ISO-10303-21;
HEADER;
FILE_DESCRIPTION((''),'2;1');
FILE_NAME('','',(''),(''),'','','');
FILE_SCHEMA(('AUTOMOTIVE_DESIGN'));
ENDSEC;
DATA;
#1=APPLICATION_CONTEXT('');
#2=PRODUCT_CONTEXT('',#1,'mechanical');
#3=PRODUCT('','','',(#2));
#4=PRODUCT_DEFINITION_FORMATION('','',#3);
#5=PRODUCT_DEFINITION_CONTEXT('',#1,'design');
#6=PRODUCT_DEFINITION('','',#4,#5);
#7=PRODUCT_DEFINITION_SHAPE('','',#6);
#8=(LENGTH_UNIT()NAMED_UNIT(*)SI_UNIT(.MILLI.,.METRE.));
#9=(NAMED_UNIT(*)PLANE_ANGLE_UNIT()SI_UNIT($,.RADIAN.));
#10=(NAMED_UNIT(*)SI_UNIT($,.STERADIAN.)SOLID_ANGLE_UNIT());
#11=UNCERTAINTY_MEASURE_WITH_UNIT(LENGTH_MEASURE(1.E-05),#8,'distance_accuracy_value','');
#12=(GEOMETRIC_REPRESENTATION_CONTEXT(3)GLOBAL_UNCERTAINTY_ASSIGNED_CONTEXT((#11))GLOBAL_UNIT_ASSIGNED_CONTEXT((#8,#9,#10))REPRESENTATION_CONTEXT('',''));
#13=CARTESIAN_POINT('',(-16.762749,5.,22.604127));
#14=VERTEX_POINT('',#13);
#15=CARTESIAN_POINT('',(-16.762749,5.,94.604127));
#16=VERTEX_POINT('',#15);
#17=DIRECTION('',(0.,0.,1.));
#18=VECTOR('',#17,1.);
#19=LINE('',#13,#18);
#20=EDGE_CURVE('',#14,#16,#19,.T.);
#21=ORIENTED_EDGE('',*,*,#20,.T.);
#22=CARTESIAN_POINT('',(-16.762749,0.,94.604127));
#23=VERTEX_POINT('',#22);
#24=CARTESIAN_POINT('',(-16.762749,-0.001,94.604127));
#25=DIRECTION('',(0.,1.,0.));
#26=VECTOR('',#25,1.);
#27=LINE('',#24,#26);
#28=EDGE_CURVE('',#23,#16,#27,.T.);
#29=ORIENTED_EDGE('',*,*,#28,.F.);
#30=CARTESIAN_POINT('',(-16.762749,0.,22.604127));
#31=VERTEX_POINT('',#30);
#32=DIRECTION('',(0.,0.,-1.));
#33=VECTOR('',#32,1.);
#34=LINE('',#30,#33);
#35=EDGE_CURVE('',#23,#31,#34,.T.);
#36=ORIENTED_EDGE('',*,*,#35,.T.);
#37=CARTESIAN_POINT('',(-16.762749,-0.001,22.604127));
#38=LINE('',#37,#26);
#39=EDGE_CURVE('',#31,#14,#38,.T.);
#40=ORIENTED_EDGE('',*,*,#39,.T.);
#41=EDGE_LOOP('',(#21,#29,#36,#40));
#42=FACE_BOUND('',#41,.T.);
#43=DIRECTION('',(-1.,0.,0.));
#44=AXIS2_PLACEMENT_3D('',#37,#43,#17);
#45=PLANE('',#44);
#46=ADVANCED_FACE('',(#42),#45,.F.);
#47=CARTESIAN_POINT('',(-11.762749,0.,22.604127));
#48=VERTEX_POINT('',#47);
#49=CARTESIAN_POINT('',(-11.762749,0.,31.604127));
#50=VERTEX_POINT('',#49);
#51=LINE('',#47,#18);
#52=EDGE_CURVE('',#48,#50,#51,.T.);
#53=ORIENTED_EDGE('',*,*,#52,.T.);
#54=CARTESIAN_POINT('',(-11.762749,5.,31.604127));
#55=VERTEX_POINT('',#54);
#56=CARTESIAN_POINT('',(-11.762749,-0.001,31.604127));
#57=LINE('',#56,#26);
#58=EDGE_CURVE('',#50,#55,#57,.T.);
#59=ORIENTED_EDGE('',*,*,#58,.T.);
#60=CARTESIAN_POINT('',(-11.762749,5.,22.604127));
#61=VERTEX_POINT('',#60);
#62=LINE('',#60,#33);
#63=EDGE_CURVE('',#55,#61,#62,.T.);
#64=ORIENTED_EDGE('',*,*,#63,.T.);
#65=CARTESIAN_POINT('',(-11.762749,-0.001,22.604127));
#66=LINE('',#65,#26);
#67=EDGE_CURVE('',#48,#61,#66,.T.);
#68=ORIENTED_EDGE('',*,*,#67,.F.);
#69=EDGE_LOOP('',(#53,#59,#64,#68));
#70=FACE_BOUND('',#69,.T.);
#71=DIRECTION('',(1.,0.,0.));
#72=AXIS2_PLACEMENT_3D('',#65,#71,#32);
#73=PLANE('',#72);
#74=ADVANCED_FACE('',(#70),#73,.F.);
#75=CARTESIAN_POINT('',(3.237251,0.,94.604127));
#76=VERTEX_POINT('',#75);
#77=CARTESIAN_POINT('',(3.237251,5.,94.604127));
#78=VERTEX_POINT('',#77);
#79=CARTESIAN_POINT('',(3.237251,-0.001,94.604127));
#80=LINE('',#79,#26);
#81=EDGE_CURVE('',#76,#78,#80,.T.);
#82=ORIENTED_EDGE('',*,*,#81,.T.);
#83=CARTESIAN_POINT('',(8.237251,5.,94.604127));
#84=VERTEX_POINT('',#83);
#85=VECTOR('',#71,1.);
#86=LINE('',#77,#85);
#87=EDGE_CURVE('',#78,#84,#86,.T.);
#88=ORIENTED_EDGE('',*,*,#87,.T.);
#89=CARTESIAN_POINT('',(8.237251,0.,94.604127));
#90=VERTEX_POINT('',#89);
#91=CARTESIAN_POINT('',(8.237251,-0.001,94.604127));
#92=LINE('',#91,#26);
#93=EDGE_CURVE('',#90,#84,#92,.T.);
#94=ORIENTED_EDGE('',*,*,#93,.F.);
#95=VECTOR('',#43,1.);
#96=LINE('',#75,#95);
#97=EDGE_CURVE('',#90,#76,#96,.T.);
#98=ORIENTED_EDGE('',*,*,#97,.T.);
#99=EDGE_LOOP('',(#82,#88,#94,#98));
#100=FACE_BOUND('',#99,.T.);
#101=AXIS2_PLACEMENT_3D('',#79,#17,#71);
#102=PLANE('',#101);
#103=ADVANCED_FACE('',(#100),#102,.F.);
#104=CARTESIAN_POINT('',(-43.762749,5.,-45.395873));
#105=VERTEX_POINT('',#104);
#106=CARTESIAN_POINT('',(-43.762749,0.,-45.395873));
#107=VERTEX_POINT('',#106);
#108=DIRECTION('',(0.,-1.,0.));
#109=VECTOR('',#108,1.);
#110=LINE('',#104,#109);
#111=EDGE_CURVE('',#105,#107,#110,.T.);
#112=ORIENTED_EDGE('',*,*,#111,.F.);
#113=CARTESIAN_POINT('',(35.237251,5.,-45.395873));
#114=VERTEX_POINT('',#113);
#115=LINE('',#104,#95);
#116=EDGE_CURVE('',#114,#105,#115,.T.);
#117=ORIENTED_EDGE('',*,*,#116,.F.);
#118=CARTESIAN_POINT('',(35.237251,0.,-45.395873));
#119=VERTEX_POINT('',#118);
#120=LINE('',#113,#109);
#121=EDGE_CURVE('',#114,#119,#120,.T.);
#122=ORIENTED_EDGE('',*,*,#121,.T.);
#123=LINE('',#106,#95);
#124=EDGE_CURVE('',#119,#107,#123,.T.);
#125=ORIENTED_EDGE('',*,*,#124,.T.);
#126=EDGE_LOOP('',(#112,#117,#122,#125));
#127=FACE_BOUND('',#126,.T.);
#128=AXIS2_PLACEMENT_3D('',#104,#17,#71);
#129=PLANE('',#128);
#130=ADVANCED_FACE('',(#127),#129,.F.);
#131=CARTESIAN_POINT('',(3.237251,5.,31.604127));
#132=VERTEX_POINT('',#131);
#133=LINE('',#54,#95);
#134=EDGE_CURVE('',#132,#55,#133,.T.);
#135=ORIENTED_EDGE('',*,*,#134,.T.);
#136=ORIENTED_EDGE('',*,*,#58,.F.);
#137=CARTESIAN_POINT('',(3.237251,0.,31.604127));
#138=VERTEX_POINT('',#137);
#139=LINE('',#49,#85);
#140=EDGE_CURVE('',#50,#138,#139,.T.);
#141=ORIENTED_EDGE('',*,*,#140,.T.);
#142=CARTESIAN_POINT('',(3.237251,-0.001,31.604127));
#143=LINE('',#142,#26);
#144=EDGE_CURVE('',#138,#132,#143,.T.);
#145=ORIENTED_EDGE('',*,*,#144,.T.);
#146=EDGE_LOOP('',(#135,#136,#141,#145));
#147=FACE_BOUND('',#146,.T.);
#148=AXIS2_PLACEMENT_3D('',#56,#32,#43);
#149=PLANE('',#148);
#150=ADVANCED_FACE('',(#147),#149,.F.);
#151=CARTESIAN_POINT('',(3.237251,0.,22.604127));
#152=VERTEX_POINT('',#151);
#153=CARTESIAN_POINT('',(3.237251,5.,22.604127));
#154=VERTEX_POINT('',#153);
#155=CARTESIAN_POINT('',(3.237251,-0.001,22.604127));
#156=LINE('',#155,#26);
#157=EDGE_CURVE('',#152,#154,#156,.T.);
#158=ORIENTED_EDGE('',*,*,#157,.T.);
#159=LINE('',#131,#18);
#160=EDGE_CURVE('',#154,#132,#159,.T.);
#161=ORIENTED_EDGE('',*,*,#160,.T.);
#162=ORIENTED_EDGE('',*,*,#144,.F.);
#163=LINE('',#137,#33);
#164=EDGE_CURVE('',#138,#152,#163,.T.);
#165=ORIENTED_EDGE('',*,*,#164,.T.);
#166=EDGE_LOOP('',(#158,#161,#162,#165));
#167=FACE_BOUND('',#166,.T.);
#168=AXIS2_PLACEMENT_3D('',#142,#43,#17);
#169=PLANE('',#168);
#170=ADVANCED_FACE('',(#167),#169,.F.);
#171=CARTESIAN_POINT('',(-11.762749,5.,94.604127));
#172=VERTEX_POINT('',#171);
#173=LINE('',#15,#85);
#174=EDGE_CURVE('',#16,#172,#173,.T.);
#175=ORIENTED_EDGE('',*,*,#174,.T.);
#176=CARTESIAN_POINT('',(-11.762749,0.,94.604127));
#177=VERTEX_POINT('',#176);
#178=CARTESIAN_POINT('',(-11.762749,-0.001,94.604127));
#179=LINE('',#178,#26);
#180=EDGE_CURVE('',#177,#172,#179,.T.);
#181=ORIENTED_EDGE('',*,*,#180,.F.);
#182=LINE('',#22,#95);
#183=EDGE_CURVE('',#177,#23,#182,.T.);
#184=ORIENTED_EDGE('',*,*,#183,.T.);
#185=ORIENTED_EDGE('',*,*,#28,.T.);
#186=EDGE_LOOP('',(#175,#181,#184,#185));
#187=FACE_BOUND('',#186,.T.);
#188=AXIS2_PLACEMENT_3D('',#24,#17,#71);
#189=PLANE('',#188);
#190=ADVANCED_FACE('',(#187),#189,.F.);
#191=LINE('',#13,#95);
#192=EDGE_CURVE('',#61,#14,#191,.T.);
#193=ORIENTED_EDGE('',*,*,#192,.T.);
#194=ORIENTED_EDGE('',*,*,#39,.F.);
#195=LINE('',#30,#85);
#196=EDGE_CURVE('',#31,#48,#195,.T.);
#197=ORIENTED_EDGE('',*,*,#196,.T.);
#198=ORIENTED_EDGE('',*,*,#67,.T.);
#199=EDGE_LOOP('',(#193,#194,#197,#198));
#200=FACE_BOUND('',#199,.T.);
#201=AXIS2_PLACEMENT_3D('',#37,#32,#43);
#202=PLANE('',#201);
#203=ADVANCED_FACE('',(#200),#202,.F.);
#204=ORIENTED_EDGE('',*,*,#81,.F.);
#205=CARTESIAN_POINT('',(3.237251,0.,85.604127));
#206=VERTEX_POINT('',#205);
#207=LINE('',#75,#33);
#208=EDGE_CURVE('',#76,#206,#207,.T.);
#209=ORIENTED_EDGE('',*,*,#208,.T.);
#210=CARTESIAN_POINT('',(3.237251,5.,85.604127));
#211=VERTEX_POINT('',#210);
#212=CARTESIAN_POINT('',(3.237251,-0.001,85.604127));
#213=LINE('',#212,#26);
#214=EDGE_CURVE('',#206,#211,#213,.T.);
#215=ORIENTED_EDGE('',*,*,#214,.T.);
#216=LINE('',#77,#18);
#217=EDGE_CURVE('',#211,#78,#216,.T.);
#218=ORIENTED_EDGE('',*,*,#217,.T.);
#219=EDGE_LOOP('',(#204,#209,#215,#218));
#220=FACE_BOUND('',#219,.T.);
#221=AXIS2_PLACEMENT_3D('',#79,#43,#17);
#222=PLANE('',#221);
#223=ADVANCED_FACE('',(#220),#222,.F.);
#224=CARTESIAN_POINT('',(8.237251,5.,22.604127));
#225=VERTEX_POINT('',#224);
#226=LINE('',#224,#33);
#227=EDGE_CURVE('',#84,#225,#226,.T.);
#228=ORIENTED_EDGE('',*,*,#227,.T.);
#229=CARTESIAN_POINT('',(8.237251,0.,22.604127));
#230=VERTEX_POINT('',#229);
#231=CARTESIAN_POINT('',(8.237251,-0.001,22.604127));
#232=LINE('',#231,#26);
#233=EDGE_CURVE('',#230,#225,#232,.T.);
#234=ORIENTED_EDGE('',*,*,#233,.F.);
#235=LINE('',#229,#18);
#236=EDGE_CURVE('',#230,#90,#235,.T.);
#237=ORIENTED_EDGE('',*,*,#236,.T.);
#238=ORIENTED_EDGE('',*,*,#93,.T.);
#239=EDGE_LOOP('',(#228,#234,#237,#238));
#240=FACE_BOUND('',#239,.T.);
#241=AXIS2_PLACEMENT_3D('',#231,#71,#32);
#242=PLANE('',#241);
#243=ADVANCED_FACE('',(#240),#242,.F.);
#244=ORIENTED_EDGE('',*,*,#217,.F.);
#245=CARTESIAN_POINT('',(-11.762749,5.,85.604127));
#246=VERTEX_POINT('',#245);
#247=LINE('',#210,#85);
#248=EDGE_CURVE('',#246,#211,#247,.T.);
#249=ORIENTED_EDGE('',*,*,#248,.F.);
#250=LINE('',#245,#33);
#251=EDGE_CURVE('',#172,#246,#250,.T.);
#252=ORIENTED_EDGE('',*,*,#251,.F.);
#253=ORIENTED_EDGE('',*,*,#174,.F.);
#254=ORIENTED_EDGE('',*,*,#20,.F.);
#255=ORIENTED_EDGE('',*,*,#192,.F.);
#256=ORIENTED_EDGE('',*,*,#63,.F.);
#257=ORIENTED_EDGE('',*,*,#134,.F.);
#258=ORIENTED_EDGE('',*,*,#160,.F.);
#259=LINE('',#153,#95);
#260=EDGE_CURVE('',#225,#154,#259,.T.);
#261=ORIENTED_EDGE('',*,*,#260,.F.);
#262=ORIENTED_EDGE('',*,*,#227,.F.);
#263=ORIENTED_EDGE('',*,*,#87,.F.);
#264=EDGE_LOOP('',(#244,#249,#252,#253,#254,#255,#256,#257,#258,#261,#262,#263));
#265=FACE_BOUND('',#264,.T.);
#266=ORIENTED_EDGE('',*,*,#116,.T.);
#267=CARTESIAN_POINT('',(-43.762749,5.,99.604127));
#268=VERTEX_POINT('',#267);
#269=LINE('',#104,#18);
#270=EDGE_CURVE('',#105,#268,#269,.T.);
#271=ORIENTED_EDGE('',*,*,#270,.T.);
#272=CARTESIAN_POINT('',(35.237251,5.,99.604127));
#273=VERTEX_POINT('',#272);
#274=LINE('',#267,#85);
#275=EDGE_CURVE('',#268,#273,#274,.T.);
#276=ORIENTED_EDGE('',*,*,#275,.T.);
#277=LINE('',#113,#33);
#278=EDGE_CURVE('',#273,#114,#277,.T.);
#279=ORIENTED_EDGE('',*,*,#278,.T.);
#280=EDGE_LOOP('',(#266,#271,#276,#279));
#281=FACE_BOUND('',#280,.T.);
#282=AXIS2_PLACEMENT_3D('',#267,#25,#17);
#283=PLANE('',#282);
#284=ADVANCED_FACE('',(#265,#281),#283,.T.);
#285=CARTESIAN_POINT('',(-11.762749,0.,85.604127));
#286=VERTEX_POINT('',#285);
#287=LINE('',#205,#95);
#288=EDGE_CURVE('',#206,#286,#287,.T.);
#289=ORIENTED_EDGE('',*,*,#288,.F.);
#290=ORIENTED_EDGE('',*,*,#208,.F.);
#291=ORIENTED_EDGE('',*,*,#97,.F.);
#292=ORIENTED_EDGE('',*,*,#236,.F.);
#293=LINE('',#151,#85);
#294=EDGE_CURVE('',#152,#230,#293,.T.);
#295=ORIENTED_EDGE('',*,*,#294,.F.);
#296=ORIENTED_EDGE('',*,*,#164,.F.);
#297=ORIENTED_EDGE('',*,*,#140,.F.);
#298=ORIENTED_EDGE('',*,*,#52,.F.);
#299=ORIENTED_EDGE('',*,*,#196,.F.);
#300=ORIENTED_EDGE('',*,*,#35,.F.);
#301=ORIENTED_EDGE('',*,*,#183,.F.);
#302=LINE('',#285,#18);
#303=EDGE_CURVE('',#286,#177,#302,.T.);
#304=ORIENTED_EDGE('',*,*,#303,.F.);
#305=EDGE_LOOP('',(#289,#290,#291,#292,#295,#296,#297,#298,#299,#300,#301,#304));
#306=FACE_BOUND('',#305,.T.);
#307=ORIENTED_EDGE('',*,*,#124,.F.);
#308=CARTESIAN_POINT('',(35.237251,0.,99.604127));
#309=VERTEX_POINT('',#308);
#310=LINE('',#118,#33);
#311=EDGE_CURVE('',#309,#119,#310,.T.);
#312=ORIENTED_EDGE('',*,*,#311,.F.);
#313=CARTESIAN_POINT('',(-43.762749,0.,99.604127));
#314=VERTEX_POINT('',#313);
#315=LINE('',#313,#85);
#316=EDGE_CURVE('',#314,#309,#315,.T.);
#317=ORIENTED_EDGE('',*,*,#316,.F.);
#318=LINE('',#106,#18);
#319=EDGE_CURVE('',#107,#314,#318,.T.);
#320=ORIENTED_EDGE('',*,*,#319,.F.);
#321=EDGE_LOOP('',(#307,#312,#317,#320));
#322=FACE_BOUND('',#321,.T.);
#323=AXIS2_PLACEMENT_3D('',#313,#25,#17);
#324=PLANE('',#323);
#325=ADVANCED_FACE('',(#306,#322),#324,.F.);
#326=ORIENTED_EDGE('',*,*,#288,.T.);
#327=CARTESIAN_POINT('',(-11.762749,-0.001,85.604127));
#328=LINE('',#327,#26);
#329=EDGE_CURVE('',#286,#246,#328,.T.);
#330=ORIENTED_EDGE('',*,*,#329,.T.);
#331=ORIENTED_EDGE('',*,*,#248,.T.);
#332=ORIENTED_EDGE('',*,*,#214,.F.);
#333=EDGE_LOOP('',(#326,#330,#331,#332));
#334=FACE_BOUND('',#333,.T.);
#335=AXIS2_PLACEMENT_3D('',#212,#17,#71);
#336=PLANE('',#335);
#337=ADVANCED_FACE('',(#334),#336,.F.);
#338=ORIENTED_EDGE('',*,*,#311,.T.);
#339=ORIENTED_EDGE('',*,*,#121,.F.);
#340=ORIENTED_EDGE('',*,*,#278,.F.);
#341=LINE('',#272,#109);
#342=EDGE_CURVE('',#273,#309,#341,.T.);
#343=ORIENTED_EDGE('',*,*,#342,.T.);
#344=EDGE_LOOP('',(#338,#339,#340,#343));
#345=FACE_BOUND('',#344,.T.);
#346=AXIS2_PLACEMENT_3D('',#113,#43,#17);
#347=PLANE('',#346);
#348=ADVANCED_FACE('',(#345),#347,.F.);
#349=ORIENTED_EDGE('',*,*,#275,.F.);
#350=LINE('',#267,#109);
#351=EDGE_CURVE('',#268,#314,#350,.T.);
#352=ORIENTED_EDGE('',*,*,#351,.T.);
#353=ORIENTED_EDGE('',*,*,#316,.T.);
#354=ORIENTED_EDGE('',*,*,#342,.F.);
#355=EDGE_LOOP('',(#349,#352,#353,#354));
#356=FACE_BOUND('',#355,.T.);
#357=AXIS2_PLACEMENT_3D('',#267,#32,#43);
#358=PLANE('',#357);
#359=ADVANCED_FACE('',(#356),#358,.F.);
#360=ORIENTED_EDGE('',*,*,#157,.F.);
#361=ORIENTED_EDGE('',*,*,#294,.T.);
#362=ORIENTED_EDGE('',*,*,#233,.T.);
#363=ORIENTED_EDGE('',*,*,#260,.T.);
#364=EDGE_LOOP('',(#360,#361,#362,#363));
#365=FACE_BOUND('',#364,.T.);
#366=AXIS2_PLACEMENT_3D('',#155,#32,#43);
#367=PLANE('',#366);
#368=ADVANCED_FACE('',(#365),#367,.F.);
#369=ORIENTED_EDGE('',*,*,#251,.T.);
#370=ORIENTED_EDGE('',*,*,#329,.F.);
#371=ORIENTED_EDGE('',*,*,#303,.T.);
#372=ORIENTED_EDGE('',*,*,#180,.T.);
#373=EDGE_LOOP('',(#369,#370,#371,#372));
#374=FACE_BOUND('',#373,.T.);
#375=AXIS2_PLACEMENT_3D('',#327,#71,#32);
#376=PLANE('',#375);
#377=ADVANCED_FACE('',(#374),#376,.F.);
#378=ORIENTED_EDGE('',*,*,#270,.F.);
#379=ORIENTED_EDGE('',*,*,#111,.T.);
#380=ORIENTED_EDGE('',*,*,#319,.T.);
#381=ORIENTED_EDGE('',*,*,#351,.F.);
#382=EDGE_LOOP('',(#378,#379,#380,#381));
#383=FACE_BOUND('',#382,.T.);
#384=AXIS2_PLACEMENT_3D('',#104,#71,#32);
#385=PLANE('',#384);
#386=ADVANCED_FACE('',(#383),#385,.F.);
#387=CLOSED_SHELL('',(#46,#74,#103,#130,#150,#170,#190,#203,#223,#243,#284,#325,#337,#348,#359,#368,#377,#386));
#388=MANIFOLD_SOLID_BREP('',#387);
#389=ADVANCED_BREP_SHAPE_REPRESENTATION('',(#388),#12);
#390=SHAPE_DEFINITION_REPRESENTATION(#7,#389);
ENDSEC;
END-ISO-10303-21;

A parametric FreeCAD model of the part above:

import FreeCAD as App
import Part
import Sketcher
Q = App.Units.Quantity


def add_polygon(sketch, points):
    """Adds a closed chain of lines whose ends are joined by coincident constraints."""
    first, n = sketch.GeometryCount, len(points)
    for a, b in zip(points, points[1:] + points[:1]):
        sketch.addGeometry(Part.LineSegment(App.Vector(*a, 0), App.Vector(*b, 0)), False)
    for i in range(n):
        sketch.addConstraint(Sketcher.Constraint("Coincident", first + i, 2, first + (i + 1) % n, 1))

doc = App.newDocument("Part")
body = doc.addObject("PartDesign::Body", "Body")

sketch1 = body.newObject("Sketcher::SketchObject", "Sketch")
sketch1.AttachmentSupport = (doc.getObject("XZ_Plane"), [""])
sketch1.MapMode = "FlatFace"
add_polygon(sketch1, [(-44, -45), (-44, 100), (35, 100), (35, -45)])
sketch1.addConstraint(Sketcher.Constraint("Vertical", 0))
sketch1.addConstraint(Sketcher.Constraint("Horizontal", 1))
sketch1.addConstraint(Sketcher.Constraint("Vertical", 2))
sketch1.addConstraint(Sketcher.Constraint("Horizontal", 3))
sketch1.addConstraint(Sketcher.Constraint("DistanceX", 1, 1, 1, 2, Q("79 mm")))
sketch1.addConstraint(Sketcher.Constraint("DistanceY", 0, 1, 0, 2, Q("145 mm")))
sketch1.addConstraint(Sketcher.Constraint("DistanceX", 0, 2, -1, 1, Q("43.762749 mm")))
sketch1.addConstraint(Sketcher.Constraint("DistanceY", -1, 1, 0, 2, Q("99.604127 mm")))
pad1 = body.newObject("PartDesign::Pad", "Pad")
pad1.Profile = sketch1
pad1.Length = 5
pad1.Reversed = True

sketch2 = body.newObject("Sketcher::SketchObject", "Sketch001")
sketch2.AttachmentSupport = (doc.getObject("XZ_Plane"), [""])
sketch2.MapMode = "FlatFace"
sketch2.AttachmentOffset = App.Placement(App.Vector(0, 0, -5), App.Rotation())
add_polygon(sketch2, [(-11.8, 22.6), (-16.8, 22.6), (-16.8, 94.6), (-11.8, 94.6), (-11.8, 85.6), (3.2, 85.6), (3.2, 94.6), (8.2, 94.6), (8.2, 22.6), (3.2, 22.6), (3.2, 31.6), (-11.8, 31.6)])
sketch2.addConstraint(Sketcher.Constraint("Horizontal", 0))
sketch2.addConstraint(Sketcher.Constraint("Vertical", 1))
sketch2.addConstraint(Sketcher.Constraint("Horizontal", 2))
sketch2.addConstraint(Sketcher.Constraint("Vertical", 3))
sketch2.addConstraint(Sketcher.Constraint("Horizontal", 4))
sketch2.addConstraint(Sketcher.Constraint("Vertical", 5))
sketch2.addConstraint(Sketcher.Constraint("Horizontal", 6))
sketch2.addConstraint(Sketcher.Constraint("Vertical", 7))
sketch2.addConstraint(Sketcher.Constraint("Horizontal", 8))
sketch2.addConstraint(Sketcher.Constraint("Vertical", 9))
sketch2.addConstraint(Sketcher.Constraint("Horizontal", 10))
sketch2.addConstraint(Sketcher.Constraint("Vertical", 11))
sketch2.addConstraint(Sketcher.Constraint("Horizontal", 2, 2, 5, 2))
sketch2.addConstraint(Sketcher.Constraint("Horizontal", 0, 2, 7, 2))
sketch2.addConstraint(Sketcher.Constraint("Vertical", 5, 2, 8, 2))
sketch2.addConstraint(Sketcher.Constraint("Vertical", 3, 2, 10, 2))
sketch2.addConstraint(Sketcher.Constraint("Equal", 2, 6))
sketch2.addConstraint(Sketcher.Constraint("Equal", 5, 9))
sketch2.addConstraint(Sketcher.Constraint("DistanceX", 0, 2, 0, 1, Q("5 mm")))
sketch2.addConstraint(Sketcher.Constraint("DistanceX", 4, 1, 4, 2, Q("15 mm")))
sketch2.addConstraint(Sketcher.Constraint("DistanceY", 1, 1, 1, 2, Q("72 mm")))
sketch2.addConstraint(Sketcher.Constraint("DistanceY", 3, 2, 3, 1, Q("9 mm")))
sketch2.addConstraint(Sketcher.Constraint("DistanceX", 0, 2, -1, 1, Q("16.762749 mm")))
sketch2.addConstraint(Sketcher.Constraint("DistanceY", -1, 1, 0, 2, Q("22.604127 mm")))
pocket1 = body.newObject("PartDesign::Pocket", "Pocket")
pocket1.Profile = sketch2
pocket1.Type = "UpToFirst"
pocket1.Reversed = True

doc.recompute()
